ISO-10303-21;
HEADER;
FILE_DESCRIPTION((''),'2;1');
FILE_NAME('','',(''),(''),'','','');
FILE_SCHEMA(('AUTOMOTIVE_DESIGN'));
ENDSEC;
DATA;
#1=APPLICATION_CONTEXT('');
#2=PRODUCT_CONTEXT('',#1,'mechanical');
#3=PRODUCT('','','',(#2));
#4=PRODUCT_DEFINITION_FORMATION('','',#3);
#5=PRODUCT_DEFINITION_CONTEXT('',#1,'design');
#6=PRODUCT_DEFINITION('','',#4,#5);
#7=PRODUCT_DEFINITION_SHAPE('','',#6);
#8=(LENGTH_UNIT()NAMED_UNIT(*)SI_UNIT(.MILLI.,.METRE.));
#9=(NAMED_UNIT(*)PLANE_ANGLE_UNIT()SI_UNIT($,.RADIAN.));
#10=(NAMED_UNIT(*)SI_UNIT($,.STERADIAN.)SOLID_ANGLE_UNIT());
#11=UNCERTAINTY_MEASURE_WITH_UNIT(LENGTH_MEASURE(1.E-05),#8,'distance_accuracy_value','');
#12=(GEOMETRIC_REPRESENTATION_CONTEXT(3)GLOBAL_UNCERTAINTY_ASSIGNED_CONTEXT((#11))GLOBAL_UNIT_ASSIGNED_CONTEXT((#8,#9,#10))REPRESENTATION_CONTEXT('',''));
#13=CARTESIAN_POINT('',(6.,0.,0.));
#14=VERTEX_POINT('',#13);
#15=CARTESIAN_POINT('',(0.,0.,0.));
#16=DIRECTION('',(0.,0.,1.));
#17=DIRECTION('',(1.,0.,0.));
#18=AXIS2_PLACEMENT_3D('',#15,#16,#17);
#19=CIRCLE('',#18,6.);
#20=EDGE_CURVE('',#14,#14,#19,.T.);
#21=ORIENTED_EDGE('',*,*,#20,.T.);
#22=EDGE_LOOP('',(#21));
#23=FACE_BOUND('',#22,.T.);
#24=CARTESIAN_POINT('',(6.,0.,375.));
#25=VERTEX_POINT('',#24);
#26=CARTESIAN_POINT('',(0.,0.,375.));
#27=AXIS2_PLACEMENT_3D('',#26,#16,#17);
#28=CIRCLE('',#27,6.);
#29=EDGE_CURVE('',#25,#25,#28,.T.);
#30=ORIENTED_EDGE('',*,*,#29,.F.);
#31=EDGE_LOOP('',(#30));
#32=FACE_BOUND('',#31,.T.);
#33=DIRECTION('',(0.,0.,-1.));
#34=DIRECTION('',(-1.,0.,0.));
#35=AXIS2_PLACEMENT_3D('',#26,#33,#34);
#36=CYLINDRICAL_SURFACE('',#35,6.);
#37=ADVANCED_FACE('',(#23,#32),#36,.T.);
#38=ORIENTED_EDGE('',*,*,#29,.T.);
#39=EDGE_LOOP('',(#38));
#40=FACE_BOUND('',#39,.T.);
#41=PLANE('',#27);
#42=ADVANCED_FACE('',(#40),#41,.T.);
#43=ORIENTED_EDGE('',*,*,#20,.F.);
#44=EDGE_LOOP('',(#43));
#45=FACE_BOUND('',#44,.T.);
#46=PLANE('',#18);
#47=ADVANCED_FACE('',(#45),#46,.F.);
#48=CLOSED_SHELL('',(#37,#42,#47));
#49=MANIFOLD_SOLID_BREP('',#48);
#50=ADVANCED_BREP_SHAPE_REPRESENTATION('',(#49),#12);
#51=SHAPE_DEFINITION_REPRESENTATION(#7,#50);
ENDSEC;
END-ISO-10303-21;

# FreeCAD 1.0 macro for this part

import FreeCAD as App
import Part
import Sketcher
Q = App.Units.Quantity

doc = App.newDocument("Part")
body = doc.addObject("PartDesign::Body", "Body")

sketch1 = body.newObject("Sketcher::SketchObject", "Sketch")
sketch1.AttachmentSupport = (doc.getObject("XY_Plane"), [""])
sketch1.MapMode = "FlatFace"
sketch1.addGeometry(Part.Circle(App.Vector(0, 0, 0), App.Vector(0, 0, 1), 6), False)
sketch1.addConstraint(Sketcher.Constraint("Coincident", 0, 3, -1, 1))
sketch1.addConstraint(Sketcher.Constraint("Diameter", 0, Q("12 mm")))
pad1 = body.newObject("PartDesign::Pad", "Pad")
pad1.Profile = sketch1
pad1.Length = 375

doc.recompute()
